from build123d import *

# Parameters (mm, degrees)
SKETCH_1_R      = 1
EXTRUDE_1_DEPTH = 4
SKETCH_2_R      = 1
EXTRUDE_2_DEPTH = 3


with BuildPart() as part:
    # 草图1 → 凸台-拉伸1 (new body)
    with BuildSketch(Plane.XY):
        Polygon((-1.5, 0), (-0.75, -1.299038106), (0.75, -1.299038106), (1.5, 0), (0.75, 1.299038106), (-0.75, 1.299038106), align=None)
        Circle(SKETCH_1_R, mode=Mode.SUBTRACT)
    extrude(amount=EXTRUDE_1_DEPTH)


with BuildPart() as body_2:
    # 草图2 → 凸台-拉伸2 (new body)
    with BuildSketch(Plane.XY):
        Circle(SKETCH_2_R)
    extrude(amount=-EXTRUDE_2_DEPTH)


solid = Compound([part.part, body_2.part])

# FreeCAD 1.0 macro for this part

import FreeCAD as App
import Part
import Sketcher
Q = App.Units.Quantity

doc = App.newDocument("Part")
body = doc.addObject("PartDesign::Body", "Body")

sketch1 = body.newObject("Sketcher::SketchObject", "Sketch")
sketch1.AttachmentSupport = (doc.getObject("XY_Plane"), [""])
sketch1.MapMode = "FlatFace"
sketch1.addGeometry(Part.LineSegment(App.Vector(-1.5, 0, 0), App.Vector(-0.75, -1.299038, 0)), False)
sketch1.addGeometry(Part.LineSegment(App.Vector(-0.75, -1.299038, 0), App.Vector(0.75, -1.299038, 0)), False)
sketch1.addGeometry(Part.LineSegment(App.Vector(0.75, -1.299038, 0), App.Vector(1.5, 0, 0)), False)
sketch1.addGeometry(Part.LineSegment(App.Vector(1.5, 0, 0), App.Vector(0.75, 1.299038, 0)), False)
sketch1.addGeometry(Part.LineSegment(App.Vector(0.75, 1.299038, 0), App.Vector(-0.75, 1.299038, 0)), False)
sketch1.addGeometry(Part.LineSegment(App.Vector(-0.75, 1.299038, 0), App.Vector(-1.5, 0, 0)), False)
sketch1.addGeometry(Part.Circle(App.Vector(0, 0, 0), App.Vector(0, 0, 1), 1), False)
sketch1.addConstraint(Sketcher.Constraint("Coincident", 0, 2, 1, 1))
sketch1.addConstraint(Sketcher.Constraint("Coincident", 1, 2, 2, 1))
sketch1.addConstraint(Sketcher.Constraint("Coincident", 2, 2, 3, 1))
sketch1.addConstraint(Sketcher.Constraint("Coincident", 3, 2, 4, 1))
sketch1.addConstraint(Sketcher.Constraint("Coincident", 4, 2, 5, 1))
sketch1.addConstraint(Sketcher.Constraint("Coincident", 5, 2, 0, 1))
sketch1.addConstraint(Sketcher.Constraint("Horizontal", 1))
sketch1.addConstraint(Sketcher.Constraint("Horizontal", 4))
sketch1.addConstraint(Sketcher.Constraint("Coincident", 6, 3, -1, 1))
sketch1.addConstraint(Sketcher.Constraint("Symmetric", 0, 2, 3, 2, -1, 1))
sketch1.addConstraint(Sketcher.Constraint("Symmetric", 2, 2, 5, 2, -1, 1))
sketch1.addConstraint(Sketcher.Constraint("PointOnObject", 2, 2, -1))
sketch1.addConstraint(Sketcher.Constraint("Parallel", 2, 5))
sketch1.addConstraint(Sketcher.Constraint("Vertical", 1, 2, 3, 2))
sketch1.addConstraint(Sketcher.Constraint("Diameter", 6, 2.0))
sketch1.addConstraint(Sketcher.Constraint("Angle", 0, Q("-60 deg")))
sketch1.addConstraint(Sketcher.Constraint("DistanceX", 1, 1, 1, 2, 1.5))
sketch1.addConstraint(Sketcher.Constraint("Distance", 0, 1.5))
pad1 = body.newObject("PartDesign::Pad", "Pad")
pad1.Profile = sketch1
pad1.Length = 4
body2 = doc.addObject("PartDesign::Body", "Body001")

sketch2 = body2.newObject("Sketcher::SketchObject", "Sketch001")
sketch2.AttachmentSupport = (doc.getObject("XY_Plane001"), [""])
sketch2.MapMode = "FlatFace"
sketch2.addGeometry(Part.Circle(App.Vector(0, 0, 0), App.Vector(0, 0, 1), 1), False)
sketch2.addConstraint(Sketcher.Constraint("Coincident", 0, 3, -1, 1))
sketch2.addConstraint(Sketcher.Constraint("Diameter", 0, 2.0))
pad2 = body2.newObject("PartDesign::Pad", "Pad001")
pad2.Profile = sketch2
pad2.Length = 3
pad2.Reversed = True

doc.recompute()
